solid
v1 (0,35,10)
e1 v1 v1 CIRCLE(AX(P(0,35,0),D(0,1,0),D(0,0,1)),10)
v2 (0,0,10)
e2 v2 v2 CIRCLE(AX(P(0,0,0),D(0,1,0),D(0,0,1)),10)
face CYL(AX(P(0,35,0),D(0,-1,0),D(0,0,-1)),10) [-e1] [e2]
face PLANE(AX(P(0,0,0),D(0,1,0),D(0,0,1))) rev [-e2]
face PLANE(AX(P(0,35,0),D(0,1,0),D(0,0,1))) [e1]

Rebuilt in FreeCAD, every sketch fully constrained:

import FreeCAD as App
import Part
import Sketcher

doc = App.newDocument("Part")
body = doc.addObject("PartDesign::Body", "Body")

# Sketch on XZ plane
sketch1 = body.newObject("Sketcher::SketchObject", "Sketch")
sketch1.AttachmentSupport = (doc.getObject("XZ_Plane"), [""])
sketch1.MapMode = "FlatFace"
sketch1.addGeometry(Part.Circle(App.Vector(0, 0, 0), App.Vector(0, 0, 1), 10), False)
sketch1.addConstraint(Sketcher.Constraint("Coincident", 0, 3, -1, 1))
sketch1.addConstraint(Sketcher.Constraint("Diameter", 0, 20.0))
pad1 = body.newObject("PartDesign::Pad", "Pad")
pad1.Profile = sketch1
pad1.Length = 35
pad1.Reversed = True

doc.recompute()
